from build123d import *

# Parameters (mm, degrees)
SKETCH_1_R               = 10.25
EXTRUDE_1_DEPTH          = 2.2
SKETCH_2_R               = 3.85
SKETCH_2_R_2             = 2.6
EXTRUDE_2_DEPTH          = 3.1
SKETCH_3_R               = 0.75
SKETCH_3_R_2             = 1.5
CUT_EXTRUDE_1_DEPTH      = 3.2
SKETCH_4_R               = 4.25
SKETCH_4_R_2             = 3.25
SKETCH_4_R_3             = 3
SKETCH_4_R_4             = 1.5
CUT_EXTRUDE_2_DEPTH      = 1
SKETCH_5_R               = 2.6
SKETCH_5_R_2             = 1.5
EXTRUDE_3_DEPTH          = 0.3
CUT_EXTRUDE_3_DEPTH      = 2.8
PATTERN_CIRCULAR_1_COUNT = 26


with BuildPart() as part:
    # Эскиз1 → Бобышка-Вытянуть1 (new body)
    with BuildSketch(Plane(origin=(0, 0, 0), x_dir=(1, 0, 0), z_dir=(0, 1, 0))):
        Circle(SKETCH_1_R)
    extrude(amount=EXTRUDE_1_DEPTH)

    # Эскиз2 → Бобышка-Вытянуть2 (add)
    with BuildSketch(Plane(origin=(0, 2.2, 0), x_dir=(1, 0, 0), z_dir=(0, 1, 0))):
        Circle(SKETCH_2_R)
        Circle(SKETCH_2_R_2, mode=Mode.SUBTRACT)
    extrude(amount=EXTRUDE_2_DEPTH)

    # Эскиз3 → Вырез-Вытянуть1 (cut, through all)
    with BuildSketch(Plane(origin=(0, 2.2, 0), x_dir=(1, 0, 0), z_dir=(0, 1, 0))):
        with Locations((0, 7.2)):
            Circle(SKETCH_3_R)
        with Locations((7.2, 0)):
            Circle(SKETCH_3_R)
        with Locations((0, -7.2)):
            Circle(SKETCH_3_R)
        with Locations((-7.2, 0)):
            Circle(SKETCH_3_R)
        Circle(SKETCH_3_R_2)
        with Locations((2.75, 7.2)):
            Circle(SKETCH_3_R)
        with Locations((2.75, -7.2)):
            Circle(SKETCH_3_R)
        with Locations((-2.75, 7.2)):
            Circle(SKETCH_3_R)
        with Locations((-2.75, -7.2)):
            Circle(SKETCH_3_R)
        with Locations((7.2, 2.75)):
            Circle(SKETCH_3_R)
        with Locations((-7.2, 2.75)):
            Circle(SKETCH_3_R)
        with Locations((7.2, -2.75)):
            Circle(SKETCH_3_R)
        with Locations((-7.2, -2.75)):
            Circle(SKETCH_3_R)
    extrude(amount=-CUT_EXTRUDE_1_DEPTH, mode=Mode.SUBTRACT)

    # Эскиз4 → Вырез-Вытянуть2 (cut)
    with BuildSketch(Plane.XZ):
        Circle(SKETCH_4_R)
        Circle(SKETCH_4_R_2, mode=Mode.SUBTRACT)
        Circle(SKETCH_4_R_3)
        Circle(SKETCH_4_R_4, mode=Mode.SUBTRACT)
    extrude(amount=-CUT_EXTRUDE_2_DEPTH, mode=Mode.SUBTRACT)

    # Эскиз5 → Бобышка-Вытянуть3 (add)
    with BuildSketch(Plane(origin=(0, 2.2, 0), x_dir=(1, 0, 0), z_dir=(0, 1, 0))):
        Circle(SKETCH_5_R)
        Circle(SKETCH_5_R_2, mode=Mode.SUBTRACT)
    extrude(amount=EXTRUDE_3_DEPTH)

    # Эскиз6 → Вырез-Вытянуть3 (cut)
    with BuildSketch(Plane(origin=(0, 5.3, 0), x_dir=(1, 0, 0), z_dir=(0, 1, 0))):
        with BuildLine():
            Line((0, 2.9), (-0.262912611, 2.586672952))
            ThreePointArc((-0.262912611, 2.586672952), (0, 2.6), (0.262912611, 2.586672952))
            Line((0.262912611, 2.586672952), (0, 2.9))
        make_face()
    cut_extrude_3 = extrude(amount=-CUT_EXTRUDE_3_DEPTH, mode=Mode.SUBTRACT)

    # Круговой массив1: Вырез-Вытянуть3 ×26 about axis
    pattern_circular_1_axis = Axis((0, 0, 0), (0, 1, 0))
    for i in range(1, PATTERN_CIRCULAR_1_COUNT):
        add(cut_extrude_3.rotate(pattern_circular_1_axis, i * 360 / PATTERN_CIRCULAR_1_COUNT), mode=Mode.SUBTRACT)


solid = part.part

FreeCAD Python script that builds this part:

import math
import FreeCAD as App
import Part
import Sketcher

V = App.Vector
Q = App.Units.Quantity

doc = App.newDocument("Part")
body = doc.addObject("PartDesign::Body", "Body")

# Sketch on XZ plane
sketch1 = body.newObject("Sketcher::SketchObject", "Sketch")
sketch1.AttachmentSupport = (doc.getObject("XZ_Plane"), [""])
sketch1.MapMode = "FlatFace"
sketch1.addGeometry(Part.Circle(V(0, 0, 0), V(0, 0, 1), 10.25), False)
sketch1.addConstraint(Sketcher.Constraint("Coincident", 0, 3, -1, 1))
sketch1.addConstraint(Sketcher.Constraint("Diameter", 0, 20.5))
pad1 = body.newObject("PartDesign::Pad", "Pad")
pad1.Profile = sketch1
pad1.Length = 2.2
pad1.Reversed = True

# Sketch on XZ plane
sketch2 = body.newObject("Sketcher::SketchObject", "Sketch001")
sketch2.AttachmentSupport = (doc.getObject("XZ_Plane"), [""])
sketch2.MapMode = "FlatFace"
sketch2.AttachmentOffset = App.Placement(V(0, 0, -2.2), App.Rotation())
sketch2.addGeometry(Part.Circle(V(0, 0, 0), V(0, 0, 1), 3.85), False)
sketch2.addGeometry(Part.Circle(V(0, 0, 0), V(0, 0, 1), 2.6), False)
sketch2.addConstraint(Sketcher.Constraint("Coincident", 0, 3, -1, 1))
sketch2.addConstraint(Sketcher.Constraint("Coincident", 1, 3, -1, 1))
sketch2.addConstraint(Sketcher.Constraint("Diameter", 0, 7.7))
sketch2.addConstraint(Sketcher.Constraint("Diameter", 1, 5.2))
pad2 = body.newObject("PartDesign::Pad", "Pad001")
pad2.Profile = sketch2
pad2.Length = 3.1
pad2.Reversed = True

# Sketch on XZ plane
sketch3 = body.newObject("Sketcher::SketchObject", "Sketch002")
sketch3.AttachmentSupport = (doc.getObject("XZ_Plane"), [""])
sketch3.MapMode = "FlatFace"
sketch3.AttachmentOffset = App.Placement(V(0, 0, -2.2), App.Rotation())
sketch3.addGeometry(Part.Circle(V(0, -7.2, 0), V(0, 0, 1), 0.75), False)
sketch3.addGeometry(Part.Circle(V(7.2, 0, 0), V(0, 0, 1), 0.75), False)
sketch3.addGeometry(Part.Circle(V(0, 7.2, 0), V(0, 0, 1), 0.75), False)
sketch3.addGeometry(Part.Circle(V(-7.2, 0, 0), V(0, 0, 1), 0.75), False)
sketch3.addGeometry(Part.Circle(V(0, 0, 0), V(0, 0, 1), 1.5), False)
sketch3.addGeometry(Part.Circle(V(2.75, -7.2, 0), V(0, 0, 1), 0.75), False)
sketch3.addGeometry(Part.Circle(V(2.75, 7.2, 0), V(0, 0, 1), 0.75), False)
sketch3.addGeometry(Part.Circle(V(-2.75, -7.2, 0), V(0, 0, 1), 0.75), False)
sketch3.addGeometry(Part.Circle(V(-2.75, 7.2, 0), V(0, 0, 1), 0.75), False)
sketch3.addGeometry(Part.Circle(V(7.2, -2.75, 0), V(0, 0, 1), 0.75), False)
sketch3.addGeometry(Part.Circle(V(-7.2, -2.75, 0), V(0, 0, 1), 0.75), False)
sketch3.addGeometry(Part.Circle(V(7.2, 2.75, 0), V(0, 0, 1), 0.75), False)
sketch3.addGeometry(Part.Circle(V(-7.2, 2.75, 0), V(0, 0, 1), 0.75), False)
sketch3.addConstraint(Sketcher.Constraint("Coincident", 4, 3, -1, 1))
sketch3.addConstraint(Sketcher.Constraint("Equal", 0, 1))
sketch3.addConstraint(Sketcher.Constraint("Equal", 1, 2))
sketch3.addConstraint(Sketcher.Constraint("Equal", 2, 3))
sketch3.addConstraint(Sketcher.Constraint("Equal", 3, 5))
sketch3.addConstraint(Sketcher.Constraint("Equal", 5, 6))
sketch3.addConstraint(Sketcher.Constraint("Equal", 6, 7))
sketch3.addConstraint(Sketcher.Constraint("Equal", 7, 8))
sketch3.addConstraint(Sketcher.Constraint("Equal", 8, 9))
sketch3.addConstraint(Sketcher.Constraint("Equal", 9, 10))
sketch3.addConstraint(Sketcher.Constraint("Equal", 10, 11))
sketch3.addConstraint(Sketcher.Constraint("Equal", 11, 12))
sketch3.addConstraint(Sketcher.Constraint("Symmetric", 0, 3, 2, 3, -1, 1))
sketch3.addConstraint(Sketcher.Constraint("Symmetric", 1, 3, 3, 3, -1, 1))
sketch3.addConstraint(Sketcher.Constraint("Symmetric", 6, 3, 7, 3, -1, 1))
sketch3.addConstraint(Sketcher.Constraint("Symmetric", 5, 3, 8, 3, -1, 1))
sketch3.addConstraint(Sketcher.Constraint("Symmetric", 10, 3, 11, 3, -1, 1))
sketch3.addConstraint(Sketcher.Constraint("Symmetric", 9, 3, 12, 3, -1, 1))
sketch3.addConstraint(Sketcher.Constraint("Symmetric", 5, 3, 7, 3, -2))
sketch3.addConstraint(Sketcher.Constraint("Symmetric", 9, 3, 10, 3, -2))
sketch3.addConstraint(Sketcher.Constraint("PointOnObject", 0, 3, -2))
sketch3.addConstraint(Sketcher.Constraint("PointOnObject", 1, 3, -1))
sketch3.addConstraint(Sketcher.Constraint("Horizontal", 0, 3, 5, 3))
sketch3.addConstraint(Sketcher.Constraint("Vertical", 1, 3, 9, 3))
sketch3.addConstraint(Sketcher.Constraint("Diameter", 4, 3.0))
sketch3.addConstraint(Sketcher.Constraint("Diameter", 0, 1.5))
sketch3.addConstraint(Sketcher.Constraint("DistanceY", 0, 3, -1, 1, 7.2))
sketch3.addConstraint(Sketcher.Constraint("DistanceX", -1, 1, 1, 3, 7.2))
sketch3.addConstraint(Sketcher.Constraint("DistanceX", 7, 3, 5, 3, 5.5))
sketch3.addConstraint(Sketcher.Constraint("DistanceY", 9, 3, 11, 3, 5.5))
pocket1 = body.newObject("PartDesign::Pocket", "Pocket")
pocket1.Profile = sketch3
pocket1.Type = "ThroughAll"
pocket1.Reversed = True

# Sketch on XZ plane
sketch4 = body.newObject("Sketcher::SketchObject", "Sketch003")
sketch4.AttachmentSupport = (doc.getObject("XZ_Plane"), [""])
sketch4.MapMode = "FlatFace"
sketch4.addGeometry(Part.Circle(V(0, 0, 0), V(0, 0, 1), 4.25), False)
sketch4.addGeometry(Part.Circle(V(0, 0, 0), V(0, 0, 1), 3.25), False)
sketch4.addGeometry(Part.Circle(V(0, 0, 0), V(0, 0, 1), 3), False)
sketch4.addGeometry(Part.Circle(V(0, 0, 0), V(0, 0, 1), 1.5), False)
sketch4.addConstraint(Sketcher.Constraint("Coincident", 0, 3, -1, 1))
sketch4.addConstraint(Sketcher.Constraint("Coincident", 1, 3, -1, 1))
sketch4.addConstraint(Sketcher.Constraint("Coincident", 2, 3, -1, 1))
sketch4.addConstraint(Sketcher.Constraint("Coincident", 3, 3, -1, 1))
sketch4.addConstraint(Sketcher.Constraint("Diameter", 2, 6.0))
sketch4.addConstraint(Sketcher.Constraint("Diameter", 3, 3.0))
sketch4.addConstraint(Sketcher.Constraint("Diameter", 0, 8.5))
sketch4.addConstraint(Sketcher.Constraint("Diameter", 1, 6.5))
pocket2 = body.newObject("PartDesign::Pocket", "Pocket001")
pocket2.Profile = sketch4
pocket2.Length = 1

# Sketch on XZ plane
sketch5 = body.newObject("Sketcher::SketchObject", "Sketch004")
sketch5.AttachmentSupport = (doc.getObject("XZ_Plane"), [""])
sketch5.MapMode = "FlatFace"
sketch5.AttachmentOffset = App.Placement(V(0, 0, -2.2), App.Rotation())
sketch5.addGeometry(Part.Circle(V(0, 0, 0), V(0, 0, 1), 2.6), False)
sketch5.addGeometry(Part.Circle(V(0, 0, 0), V(0, 0, 1), 1.5), False)
sketch5.addConstraint(Sketcher.Constraint("Coincident", 0, 3, -1, 1))
sketch5.addConstraint(Sketcher.Constraint("Coincident", 1, 3, -1, 1))
sketch5.addConstraint(Sketcher.Constraint("Diameter", 1, 3.0))
sketch5.addConstraint(Sketcher.Constraint("Diameter", 0, 5.2))
pad3 = body.newObject("PartDesign::Pad", "Pad002")
pad3.Profile = sketch5
pad3.Length = 0.3
pad3.Reversed = True

# Sketch on XZ plane
sketch6 = body.newObject("Sketcher::SketchObject", "Sketch005")
sketch6.AttachmentSupport = (doc.getObject("XZ_Plane"), [""])
sketch6.MapMode = "FlatFace"
sketch6.AttachmentOffset = App.Placement(V(0, 0, -5.3), App.Rotation())
sketch6.addGeometry(Part.LineSegment(V(0, -2.9, 0), V(-0.262913, -2.586673, 0)), False)
sketch6.addGeometry(Part.ArcOfCircle(Part.Circle(V(0, 0, 0), V(0, 0, 1), 2.6), math.radians(-95.803682), math.radians(-84.196318)), False)
sketch6.addGeometry(Part.LineSegment(V(0.262913, -2.586673, 0), V(0, -2.9, 0)), False)
sketch6.addConstraint(Sketcher.Constraint("Coincident", 0, 2, 1, 1))
sketch6.addConstraint(Sketcher.Constraint("Coincident", 1, 2, 2, 1))
sketch6.addConstraint(Sketcher.Constraint("Coincident", 2, 2, 0, 1))
sketch6.addConstraint(Sketcher.Constraint("Coincident", 1, 3, -1, 1))
sketch6.addConstraint(Sketcher.Constraint("PointOnObject", 2, 2, -2))
sketch6.addConstraint(Sketcher.Constraint("Horizontal", 0, 2, 1, 2))
sketch6.addConstraint(Sketcher.Constraint("Radius", 1, 2.6))
sketch6.addConstraint(Sketcher.Constraint("Angle", 0, Q("130 deg")))
sketch6.addConstraint(Sketcher.Constraint("DistanceY", 2, 2, -1, 1, 2.9))
pocket3 = body.newObject("PartDesign::Pocket", "Pocket002")
pocket3.Profile = sketch6
pocket3.Length = 2.8
pocket3.Reversed = True
doc.recompute()

polarpattern = body.newObject("PartDesign::PolarPattern", "PolarPattern")
polarpattern.Originals = [pocket3]
polarpattern.Axis = (doc.getObject("Y_Axis"), [""])
polarpattern.Angle = 360
polarpattern.Occurrences = 26
body.Tip = polarpattern

doc.recompute()
